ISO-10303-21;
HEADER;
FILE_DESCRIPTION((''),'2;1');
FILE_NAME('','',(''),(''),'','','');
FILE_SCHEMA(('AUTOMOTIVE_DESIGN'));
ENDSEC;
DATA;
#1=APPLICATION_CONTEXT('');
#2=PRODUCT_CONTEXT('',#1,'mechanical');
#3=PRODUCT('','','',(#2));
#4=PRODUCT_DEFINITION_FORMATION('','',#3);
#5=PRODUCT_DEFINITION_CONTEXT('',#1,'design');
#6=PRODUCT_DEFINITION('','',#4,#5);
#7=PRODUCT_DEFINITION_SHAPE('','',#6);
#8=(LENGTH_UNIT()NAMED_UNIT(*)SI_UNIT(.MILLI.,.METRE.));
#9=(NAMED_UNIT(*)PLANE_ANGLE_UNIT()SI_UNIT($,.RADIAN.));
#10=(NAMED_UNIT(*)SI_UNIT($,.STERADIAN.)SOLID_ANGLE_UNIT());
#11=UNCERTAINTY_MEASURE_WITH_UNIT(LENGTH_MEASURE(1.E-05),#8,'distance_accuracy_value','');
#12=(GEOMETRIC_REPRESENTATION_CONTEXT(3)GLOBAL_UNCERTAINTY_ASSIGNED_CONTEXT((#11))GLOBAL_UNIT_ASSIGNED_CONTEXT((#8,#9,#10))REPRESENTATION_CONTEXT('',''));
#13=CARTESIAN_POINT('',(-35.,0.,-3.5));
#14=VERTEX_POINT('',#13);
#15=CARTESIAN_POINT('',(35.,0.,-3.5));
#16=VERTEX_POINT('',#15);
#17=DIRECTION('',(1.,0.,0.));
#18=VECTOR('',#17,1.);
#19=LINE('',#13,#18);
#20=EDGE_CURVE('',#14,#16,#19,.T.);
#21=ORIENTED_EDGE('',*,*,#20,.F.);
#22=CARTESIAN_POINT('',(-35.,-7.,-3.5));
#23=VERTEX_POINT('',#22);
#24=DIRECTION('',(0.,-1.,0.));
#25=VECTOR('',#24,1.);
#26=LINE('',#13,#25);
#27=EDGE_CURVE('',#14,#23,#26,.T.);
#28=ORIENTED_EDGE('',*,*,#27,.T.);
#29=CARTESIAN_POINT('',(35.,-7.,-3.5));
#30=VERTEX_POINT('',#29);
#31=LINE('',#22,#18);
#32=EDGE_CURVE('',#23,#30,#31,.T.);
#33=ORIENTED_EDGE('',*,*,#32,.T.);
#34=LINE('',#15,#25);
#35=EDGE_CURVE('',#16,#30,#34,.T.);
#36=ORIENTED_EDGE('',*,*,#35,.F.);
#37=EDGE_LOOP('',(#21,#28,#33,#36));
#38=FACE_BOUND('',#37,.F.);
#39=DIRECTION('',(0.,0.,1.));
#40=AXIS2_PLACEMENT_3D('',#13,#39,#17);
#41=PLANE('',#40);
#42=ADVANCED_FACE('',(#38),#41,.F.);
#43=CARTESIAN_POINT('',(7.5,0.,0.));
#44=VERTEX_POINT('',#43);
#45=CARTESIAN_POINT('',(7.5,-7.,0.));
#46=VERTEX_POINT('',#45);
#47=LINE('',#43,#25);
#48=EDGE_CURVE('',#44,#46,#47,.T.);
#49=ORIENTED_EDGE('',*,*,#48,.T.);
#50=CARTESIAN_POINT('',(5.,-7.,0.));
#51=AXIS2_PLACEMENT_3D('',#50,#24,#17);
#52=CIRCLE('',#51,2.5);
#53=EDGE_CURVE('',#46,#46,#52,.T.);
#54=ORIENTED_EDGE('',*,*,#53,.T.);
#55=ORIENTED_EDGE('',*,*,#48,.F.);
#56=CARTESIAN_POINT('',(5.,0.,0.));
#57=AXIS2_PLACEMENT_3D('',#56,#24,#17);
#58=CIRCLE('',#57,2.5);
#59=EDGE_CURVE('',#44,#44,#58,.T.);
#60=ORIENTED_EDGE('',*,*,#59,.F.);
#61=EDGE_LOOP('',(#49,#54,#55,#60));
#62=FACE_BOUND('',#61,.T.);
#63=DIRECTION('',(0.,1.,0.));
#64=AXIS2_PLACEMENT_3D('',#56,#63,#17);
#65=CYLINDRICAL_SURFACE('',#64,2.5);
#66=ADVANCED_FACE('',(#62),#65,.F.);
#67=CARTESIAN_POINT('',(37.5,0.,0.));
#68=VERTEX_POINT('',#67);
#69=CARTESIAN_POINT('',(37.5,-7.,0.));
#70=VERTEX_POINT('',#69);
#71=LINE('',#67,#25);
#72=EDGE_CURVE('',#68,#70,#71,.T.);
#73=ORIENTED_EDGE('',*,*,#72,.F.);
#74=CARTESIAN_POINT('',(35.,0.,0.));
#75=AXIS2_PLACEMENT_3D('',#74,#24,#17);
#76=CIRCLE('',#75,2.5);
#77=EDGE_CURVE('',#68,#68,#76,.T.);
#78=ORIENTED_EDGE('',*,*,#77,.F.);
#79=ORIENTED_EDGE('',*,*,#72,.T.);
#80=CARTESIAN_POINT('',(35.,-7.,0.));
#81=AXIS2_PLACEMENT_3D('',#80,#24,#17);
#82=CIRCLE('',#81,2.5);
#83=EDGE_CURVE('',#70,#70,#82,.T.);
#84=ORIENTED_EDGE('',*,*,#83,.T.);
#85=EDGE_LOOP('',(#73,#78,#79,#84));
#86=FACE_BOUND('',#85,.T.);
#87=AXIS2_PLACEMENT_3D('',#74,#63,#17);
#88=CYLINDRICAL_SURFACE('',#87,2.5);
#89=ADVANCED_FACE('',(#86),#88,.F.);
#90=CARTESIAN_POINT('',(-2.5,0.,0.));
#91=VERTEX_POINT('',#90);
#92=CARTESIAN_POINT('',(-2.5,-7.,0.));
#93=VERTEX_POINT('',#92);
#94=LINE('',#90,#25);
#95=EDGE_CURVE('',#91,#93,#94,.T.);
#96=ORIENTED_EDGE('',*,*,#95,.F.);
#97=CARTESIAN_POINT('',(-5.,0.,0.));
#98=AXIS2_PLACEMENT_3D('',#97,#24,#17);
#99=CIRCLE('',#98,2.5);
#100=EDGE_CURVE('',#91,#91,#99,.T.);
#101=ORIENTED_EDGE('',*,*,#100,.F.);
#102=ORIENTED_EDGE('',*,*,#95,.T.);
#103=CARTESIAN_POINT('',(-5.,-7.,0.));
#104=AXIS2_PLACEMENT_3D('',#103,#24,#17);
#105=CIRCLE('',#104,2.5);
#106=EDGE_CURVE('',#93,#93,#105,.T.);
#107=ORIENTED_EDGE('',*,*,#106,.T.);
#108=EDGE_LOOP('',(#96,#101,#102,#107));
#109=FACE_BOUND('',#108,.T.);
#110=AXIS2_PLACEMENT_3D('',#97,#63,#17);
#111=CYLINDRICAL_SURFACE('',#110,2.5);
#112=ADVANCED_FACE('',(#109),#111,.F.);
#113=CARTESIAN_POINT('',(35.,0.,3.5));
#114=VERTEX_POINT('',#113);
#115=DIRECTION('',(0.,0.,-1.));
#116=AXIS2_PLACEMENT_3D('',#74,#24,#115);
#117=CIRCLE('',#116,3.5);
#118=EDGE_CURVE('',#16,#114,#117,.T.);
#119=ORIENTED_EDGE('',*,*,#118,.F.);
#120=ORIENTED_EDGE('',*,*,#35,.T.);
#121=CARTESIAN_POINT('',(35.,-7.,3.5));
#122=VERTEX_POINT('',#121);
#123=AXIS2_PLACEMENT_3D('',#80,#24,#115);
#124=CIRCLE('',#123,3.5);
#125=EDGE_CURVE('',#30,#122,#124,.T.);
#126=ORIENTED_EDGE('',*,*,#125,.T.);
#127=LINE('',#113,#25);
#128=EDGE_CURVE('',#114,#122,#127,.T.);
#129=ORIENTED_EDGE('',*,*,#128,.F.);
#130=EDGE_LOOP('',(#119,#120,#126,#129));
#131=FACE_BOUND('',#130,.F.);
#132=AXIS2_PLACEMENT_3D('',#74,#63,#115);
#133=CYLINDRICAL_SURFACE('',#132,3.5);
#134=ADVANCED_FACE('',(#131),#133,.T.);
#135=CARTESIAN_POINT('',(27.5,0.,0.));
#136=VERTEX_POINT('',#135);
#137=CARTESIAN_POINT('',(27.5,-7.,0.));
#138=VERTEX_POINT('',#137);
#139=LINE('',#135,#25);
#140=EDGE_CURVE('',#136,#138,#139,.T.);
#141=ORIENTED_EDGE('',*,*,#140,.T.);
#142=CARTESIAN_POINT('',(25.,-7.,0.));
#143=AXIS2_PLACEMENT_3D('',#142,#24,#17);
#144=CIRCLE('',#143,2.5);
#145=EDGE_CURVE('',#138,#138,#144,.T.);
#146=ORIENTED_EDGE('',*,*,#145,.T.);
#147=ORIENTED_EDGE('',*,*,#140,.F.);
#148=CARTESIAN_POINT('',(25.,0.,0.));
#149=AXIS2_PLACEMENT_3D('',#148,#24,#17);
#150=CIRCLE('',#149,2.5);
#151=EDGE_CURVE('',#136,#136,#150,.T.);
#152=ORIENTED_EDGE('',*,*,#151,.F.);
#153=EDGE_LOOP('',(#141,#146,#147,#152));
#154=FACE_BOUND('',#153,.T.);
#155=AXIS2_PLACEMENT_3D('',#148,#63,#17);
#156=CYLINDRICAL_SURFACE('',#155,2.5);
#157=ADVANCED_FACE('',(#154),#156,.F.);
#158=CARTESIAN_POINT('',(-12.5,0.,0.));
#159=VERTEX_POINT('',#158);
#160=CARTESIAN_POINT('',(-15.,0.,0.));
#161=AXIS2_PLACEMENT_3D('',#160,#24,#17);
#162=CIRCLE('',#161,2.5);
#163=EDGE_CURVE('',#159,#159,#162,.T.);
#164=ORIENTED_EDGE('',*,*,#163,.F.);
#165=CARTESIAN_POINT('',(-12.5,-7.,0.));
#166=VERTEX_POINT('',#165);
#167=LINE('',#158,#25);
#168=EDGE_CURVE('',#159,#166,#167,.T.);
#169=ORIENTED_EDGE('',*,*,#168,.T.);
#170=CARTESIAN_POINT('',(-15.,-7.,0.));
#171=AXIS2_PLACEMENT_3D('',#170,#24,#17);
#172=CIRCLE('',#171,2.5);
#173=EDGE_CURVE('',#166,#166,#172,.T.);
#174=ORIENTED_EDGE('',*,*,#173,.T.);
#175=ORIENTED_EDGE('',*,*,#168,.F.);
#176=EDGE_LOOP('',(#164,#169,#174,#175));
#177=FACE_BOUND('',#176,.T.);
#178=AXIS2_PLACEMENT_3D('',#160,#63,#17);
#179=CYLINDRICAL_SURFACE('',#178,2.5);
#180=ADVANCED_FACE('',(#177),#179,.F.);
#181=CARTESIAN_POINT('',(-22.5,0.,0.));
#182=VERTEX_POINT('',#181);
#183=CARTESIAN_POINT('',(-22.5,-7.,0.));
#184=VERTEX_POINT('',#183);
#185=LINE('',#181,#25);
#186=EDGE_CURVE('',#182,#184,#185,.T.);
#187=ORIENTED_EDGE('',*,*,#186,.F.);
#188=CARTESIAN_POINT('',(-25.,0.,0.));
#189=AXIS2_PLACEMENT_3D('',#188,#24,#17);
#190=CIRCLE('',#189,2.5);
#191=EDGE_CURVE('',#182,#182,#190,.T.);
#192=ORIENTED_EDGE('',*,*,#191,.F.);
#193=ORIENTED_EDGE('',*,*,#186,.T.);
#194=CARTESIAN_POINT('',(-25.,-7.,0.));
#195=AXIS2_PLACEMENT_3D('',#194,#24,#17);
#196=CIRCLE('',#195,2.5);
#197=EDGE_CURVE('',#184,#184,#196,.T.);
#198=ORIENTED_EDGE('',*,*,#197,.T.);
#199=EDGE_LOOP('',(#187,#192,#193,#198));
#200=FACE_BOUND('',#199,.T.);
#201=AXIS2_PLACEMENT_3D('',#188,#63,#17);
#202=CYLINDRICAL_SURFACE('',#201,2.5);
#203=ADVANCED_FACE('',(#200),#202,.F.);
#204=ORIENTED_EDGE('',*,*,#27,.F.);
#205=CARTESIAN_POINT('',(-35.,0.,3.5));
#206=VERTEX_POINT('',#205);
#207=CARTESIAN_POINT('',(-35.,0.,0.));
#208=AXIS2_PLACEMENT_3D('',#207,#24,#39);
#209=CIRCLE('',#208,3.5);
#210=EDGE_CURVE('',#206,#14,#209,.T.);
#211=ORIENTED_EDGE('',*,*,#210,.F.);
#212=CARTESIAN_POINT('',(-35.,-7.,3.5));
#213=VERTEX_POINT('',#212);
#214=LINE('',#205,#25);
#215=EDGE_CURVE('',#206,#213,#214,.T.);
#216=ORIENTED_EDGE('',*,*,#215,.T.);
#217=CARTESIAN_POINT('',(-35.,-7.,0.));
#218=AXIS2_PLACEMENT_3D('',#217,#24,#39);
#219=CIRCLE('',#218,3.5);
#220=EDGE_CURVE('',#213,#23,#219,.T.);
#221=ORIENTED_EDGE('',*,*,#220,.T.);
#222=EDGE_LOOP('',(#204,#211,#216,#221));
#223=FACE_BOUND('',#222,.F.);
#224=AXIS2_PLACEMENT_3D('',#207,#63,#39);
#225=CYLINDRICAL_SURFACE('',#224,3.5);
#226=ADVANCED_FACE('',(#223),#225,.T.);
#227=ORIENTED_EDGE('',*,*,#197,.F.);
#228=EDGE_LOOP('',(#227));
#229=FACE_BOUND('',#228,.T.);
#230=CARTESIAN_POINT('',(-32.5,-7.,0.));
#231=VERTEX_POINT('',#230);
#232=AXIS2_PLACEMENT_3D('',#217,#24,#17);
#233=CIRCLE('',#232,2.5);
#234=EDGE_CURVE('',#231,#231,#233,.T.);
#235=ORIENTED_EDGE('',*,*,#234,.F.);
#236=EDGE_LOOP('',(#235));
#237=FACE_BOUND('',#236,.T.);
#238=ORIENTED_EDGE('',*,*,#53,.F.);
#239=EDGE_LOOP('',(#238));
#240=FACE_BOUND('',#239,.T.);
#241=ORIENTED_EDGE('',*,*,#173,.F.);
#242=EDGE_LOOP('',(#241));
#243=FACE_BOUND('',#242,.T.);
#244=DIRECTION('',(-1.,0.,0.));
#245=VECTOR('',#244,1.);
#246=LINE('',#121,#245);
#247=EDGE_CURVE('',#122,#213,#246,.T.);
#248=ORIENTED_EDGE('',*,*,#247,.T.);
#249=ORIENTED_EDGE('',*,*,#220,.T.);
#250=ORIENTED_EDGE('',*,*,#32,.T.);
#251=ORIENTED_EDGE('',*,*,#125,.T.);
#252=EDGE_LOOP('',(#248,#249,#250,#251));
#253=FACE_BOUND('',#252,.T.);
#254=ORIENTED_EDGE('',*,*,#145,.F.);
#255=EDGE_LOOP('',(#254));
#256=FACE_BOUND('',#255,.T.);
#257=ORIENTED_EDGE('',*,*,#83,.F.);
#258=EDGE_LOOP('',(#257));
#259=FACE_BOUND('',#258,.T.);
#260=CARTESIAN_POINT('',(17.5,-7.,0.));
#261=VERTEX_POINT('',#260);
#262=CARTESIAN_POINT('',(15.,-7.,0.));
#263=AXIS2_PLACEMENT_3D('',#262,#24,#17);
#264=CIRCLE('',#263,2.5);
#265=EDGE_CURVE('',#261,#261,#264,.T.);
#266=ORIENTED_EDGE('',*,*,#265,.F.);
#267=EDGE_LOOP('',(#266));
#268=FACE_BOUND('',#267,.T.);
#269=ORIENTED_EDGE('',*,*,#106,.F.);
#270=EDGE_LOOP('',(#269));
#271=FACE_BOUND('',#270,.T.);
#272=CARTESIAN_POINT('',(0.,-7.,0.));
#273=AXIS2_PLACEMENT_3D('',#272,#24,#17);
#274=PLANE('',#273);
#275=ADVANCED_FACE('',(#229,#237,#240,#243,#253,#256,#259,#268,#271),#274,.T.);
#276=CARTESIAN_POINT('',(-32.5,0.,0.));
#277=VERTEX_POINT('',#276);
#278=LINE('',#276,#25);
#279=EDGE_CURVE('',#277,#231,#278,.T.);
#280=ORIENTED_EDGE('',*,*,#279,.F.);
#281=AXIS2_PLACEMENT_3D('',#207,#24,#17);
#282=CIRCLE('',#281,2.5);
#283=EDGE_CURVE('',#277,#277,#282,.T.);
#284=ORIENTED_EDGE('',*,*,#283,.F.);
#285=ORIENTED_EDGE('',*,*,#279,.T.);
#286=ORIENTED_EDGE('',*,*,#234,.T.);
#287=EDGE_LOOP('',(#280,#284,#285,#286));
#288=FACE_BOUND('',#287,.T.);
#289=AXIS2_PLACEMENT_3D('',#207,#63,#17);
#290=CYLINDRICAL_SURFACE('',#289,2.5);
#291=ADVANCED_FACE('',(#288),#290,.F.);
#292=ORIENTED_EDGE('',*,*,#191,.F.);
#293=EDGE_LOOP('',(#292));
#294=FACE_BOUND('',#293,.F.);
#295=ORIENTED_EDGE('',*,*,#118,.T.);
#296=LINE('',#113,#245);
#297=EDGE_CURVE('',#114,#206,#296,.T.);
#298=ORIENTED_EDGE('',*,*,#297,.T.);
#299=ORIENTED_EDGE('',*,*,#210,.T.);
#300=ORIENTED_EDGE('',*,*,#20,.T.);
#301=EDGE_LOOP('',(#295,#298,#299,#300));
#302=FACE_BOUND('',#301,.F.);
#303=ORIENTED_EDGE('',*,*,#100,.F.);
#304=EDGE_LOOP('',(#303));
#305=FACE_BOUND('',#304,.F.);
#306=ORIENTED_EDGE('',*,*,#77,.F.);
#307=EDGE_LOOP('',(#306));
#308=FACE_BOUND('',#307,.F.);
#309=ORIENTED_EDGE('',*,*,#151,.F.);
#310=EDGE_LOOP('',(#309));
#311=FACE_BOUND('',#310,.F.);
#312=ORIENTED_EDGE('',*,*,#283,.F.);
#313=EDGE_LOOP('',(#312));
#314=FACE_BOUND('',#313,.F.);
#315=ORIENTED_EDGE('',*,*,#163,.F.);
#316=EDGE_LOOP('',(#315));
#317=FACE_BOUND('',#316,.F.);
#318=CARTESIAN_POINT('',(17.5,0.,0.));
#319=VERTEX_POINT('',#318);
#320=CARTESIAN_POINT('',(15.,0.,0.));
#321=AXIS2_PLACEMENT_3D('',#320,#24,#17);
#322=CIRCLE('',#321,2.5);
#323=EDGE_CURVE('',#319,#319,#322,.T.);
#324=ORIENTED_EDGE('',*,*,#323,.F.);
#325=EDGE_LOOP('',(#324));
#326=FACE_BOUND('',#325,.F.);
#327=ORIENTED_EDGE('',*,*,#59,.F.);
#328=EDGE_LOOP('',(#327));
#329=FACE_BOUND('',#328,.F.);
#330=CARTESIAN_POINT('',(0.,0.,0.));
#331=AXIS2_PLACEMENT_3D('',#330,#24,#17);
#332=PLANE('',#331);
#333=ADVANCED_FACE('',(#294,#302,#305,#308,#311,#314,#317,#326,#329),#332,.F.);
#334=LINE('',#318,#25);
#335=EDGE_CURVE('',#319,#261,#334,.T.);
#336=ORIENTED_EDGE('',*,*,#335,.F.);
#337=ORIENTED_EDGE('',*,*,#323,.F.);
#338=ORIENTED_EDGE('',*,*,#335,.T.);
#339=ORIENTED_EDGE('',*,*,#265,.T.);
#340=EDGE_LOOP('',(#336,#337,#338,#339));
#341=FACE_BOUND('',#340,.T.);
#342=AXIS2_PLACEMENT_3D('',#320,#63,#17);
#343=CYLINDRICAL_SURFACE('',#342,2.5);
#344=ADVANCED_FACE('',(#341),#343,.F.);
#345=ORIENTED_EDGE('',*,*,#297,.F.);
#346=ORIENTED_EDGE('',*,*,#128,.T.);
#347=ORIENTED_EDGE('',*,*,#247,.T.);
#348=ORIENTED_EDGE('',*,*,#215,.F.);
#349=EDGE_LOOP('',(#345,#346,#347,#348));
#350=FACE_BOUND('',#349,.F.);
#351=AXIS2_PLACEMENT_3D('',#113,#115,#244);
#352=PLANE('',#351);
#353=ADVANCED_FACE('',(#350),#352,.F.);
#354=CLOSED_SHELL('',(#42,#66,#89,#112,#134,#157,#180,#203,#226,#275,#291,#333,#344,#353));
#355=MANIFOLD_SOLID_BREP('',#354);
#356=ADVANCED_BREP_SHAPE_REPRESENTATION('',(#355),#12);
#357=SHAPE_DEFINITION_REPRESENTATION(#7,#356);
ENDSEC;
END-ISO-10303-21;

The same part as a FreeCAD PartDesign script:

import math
import FreeCAD as App
import Part
import Sketcher

doc = App.newDocument("Part")
params = doc.addObject("Spreadsheet::Sheet", "Params")
for row, (alias, value) in enumerate([
    ("sketch1_diameter", "5 mm"),
    ("sketch1_radius", "3.5 mm"),
    ("sketch1_width", "70 mm"),
    ("pad1_length", "7 mm"),
], start=1):
    params.set(f"A{row}", alias)
    params.set(f"B{row}", "=" + value)
    params.setAlias(f"B{row}", alias)

body = doc.addObject("PartDesign::Body", "Body")

# Sketch on XZ plane
sketch1 = doc.addObject("Sketcher::SketchObject", "Sketch")
body.addObject(sketch1)
sketch1.AttachmentSupport = (doc.XZ_Plane, [""])
sketch1.MapMode = "FlatFace"
sketch1.addGeometry([
    Part.LineSegment(App.Vector(35, 3.5, 0), App.Vector(-35, 3.5, 0)),  # 0
    Part.ArcOfCircle(Part.Circle(App.Vector(-35, 0, 0), App.Vector(0, 0, 1), 3.5), math.radians(90), math.radians(270)),  # 1
    Part.LineSegment(App.Vector(-35, -3.5, 0), App.Vector(35, -3.5, 0)),  # 2
    Part.ArcOfCircle(Part.Circle(App.Vector(35, 0, 0), App.Vector(0, 0, 1), 3.5), math.radians(-90), math.radians(90)),  # 3
    Part.Circle(App.Vector(-35, 0, 0), App.Vector(0, 0, 1), 2.5),  # 4
    Part.Circle(App.Vector(-25, 0, 0), App.Vector(0, 0, 1), 2.5),  # 5
    Part.Circle(App.Vector(-15, 0, 0), App.Vector(0, 0, 1), 2.5),  # 6
    Part.Circle(App.Vector(-5, 0, 0), App.Vector(0, 0, 1), 2.5),  # 7
    Part.Circle(App.Vector(5, 0, 0), App.Vector(0, 0, 1), 2.5),  # 8
    Part.Circle(App.Vector(15, 0, 0), App.Vector(0, 0, 1), 2.5),  # 9
    Part.Circle(App.Vector(25, 0, 0), App.Vector(0, 0, 1), 2.5),  # 10
    Part.Circle(App.Vector(35, 0, 0), App.Vector(0, 0, 1), 2.5),  # 11
], False)
sketch1.addConstraint([
    Sketcher.Constraint("Tangent", 0, 2, 1, 1),
    Sketcher.Constraint("Tangent", 1, 2, 2, 1),
    Sketcher.Constraint("Tangent", 2, 2, 3, 1),
    Sketcher.Constraint("Tangent", 3, 2, 0, 1),
    Sketcher.Constraint("Horizontal", 0),
    Sketcher.Constraint("Horizontal", 2),
    Sketcher.Constraint("Coincident", 4, 3, 1, 3),
    Sketcher.Constraint("Coincident", 11, 3, 3, 3),
    Sketcher.Constraint("Equal", 4, 5),
    Sketcher.Constraint("Equal", 5, 6),
    Sketcher.Constraint("Equal", 6, 7),
    Sketcher.Constraint("Equal", 7, 8),
    Sketcher.Constraint("Equal", 8, 9),
    Sketcher.Constraint("Equal", 9, 10),
    Sketcher.Constraint("Equal", 10, 11),
    Sketcher.Constraint("Symmetric", 1, 3, 3, 3, -1, 1),
    Sketcher.Constraint("Symmetric", 7, 3, 8, 3, -1, 1),
    Sketcher.Constraint("Symmetric", 6, 3, 9, 3, -1, 1),
    Sketcher.Constraint("Symmetric", 5, 3, 10, 3, -1, 1),
    Sketcher.Constraint("PointOnObject", 5, 3, -1),
    Sketcher.Constraint("PointOnObject", 6, 3, -1),
    Sketcher.Constraint("PointOnObject", 7, 3, -1),
    Sketcher.Constraint("Diameter", 4, 5.0),
    Sketcher.Constraint("Radius", 1, 3.5),
    Sketcher.Constraint("DistanceX", 0, 2, 0, 1, 70.0),
    Sketcher.Constraint("DistanceX", 5, 3, -1, 1, 25.0),
    Sketcher.Constraint("DistanceX", 6, 3, -1, 1, 15.0),
    Sketcher.Constraint("DistanceX", 7, 3, -1, 1, 5.0),
])
sketch1.setExpression("Constraints[22]", "Params.sketch1_diameter")
sketch1.setExpression("Constraints[23]", "Params.sketch1_radius")
sketch1.setExpression("Constraints[24]", "Params.sketch1_width")
pad1 = doc.addObject("PartDesign::Pad", "Pad")
body.addObject(pad1)
pad1.Profile = sketch1
pad1.setExpression("Length", "Params.pad1_length")

doc.recompute()
